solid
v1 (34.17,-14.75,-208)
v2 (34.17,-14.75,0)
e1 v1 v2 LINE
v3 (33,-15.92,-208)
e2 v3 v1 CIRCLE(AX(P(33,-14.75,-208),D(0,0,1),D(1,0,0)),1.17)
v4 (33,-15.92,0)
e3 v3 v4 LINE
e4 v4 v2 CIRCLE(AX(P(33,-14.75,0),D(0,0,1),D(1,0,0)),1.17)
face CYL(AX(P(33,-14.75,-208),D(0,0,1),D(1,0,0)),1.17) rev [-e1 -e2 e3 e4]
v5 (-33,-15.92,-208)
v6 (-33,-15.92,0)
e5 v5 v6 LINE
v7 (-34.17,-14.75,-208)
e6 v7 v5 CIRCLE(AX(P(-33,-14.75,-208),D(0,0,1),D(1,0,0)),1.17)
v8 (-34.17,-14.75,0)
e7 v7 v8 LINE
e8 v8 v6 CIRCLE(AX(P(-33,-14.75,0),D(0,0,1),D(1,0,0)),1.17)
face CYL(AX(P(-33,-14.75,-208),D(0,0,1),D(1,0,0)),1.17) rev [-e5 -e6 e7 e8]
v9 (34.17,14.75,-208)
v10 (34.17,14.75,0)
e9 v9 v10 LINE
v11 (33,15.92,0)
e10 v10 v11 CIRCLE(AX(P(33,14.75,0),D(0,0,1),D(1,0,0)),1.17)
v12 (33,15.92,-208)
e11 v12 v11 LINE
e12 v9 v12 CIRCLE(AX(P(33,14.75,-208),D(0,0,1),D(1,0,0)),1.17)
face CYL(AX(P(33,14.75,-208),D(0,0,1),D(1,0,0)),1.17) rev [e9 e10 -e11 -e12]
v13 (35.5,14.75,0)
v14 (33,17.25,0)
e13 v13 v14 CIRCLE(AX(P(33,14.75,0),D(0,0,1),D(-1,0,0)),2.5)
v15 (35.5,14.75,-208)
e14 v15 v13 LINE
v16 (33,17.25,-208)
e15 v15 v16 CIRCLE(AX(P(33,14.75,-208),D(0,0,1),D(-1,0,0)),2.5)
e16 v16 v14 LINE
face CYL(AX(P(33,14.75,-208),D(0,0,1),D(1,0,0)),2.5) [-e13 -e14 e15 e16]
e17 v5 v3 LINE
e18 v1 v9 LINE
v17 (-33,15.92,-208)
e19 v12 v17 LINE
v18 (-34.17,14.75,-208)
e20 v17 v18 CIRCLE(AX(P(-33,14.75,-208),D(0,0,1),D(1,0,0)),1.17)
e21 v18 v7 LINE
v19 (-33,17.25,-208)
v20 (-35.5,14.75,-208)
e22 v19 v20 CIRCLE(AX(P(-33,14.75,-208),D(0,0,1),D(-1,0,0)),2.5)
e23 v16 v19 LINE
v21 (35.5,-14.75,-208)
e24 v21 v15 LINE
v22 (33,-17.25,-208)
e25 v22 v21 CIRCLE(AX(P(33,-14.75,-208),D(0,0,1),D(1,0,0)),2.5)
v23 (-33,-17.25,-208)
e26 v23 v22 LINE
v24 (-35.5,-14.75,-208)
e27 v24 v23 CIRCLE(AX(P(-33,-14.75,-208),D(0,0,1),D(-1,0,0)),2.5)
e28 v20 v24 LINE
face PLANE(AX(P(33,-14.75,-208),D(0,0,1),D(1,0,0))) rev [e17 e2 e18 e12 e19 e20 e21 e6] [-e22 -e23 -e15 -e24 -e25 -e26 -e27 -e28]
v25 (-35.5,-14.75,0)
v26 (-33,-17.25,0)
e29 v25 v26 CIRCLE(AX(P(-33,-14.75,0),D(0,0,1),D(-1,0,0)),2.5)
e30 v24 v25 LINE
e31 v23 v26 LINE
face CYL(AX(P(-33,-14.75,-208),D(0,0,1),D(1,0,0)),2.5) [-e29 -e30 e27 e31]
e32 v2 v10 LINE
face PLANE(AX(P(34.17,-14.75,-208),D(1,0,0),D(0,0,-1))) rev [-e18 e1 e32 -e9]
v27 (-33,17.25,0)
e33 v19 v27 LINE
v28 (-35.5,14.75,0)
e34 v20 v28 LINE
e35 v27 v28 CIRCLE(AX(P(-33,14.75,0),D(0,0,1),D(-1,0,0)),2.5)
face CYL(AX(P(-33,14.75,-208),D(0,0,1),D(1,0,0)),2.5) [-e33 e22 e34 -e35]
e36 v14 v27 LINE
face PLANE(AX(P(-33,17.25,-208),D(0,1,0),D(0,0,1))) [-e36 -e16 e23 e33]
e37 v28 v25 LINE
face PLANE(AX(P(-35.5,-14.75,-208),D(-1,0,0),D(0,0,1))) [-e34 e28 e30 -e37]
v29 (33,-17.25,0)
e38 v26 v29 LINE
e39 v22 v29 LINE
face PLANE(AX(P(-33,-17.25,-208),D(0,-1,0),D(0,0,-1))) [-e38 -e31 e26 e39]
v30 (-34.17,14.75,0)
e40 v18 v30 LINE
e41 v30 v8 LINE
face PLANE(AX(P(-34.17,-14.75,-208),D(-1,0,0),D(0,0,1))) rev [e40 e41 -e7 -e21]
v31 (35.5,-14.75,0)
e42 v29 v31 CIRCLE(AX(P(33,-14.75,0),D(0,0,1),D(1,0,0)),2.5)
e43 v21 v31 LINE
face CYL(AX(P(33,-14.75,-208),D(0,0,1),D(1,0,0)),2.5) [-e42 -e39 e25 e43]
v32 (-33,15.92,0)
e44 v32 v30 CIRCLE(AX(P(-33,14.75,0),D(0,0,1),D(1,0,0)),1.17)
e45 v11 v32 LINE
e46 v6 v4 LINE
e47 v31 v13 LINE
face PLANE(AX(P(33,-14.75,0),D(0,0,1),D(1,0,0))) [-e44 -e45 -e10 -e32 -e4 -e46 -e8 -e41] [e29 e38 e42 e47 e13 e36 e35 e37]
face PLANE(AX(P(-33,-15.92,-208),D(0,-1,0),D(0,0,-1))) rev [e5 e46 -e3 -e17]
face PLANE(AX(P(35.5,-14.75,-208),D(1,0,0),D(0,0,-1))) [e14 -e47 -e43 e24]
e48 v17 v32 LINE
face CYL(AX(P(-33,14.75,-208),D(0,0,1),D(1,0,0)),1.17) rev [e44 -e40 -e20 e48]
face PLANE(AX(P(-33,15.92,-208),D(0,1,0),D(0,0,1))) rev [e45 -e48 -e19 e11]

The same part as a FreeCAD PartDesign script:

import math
import FreeCAD as App
import Part
import Sketcher
Q = App.Units.Quantity


def faces_at(feature, points):
    """Names of the faces that lie closest to the given points."""
    faces = feature.Shape.Faces
    near = lambda p: min(range(len(faces)), key=lambda i: faces[i].distToShape(Part.Vertex(*p))[0])
    return sorted({f"Face{near(p) + 1}" for p in points})

doc = App.newDocument("Part")
body = doc.addObject("PartDesign::Body", "Body")

# Sketch on XY plane
sketch1 = doc.addObject("Sketcher::SketchObject", "Sketch")
body.addObject(sketch1)
sketch1.AttachmentSupport = (doc.XY_Plane, [""])
sketch1.MapMode = "FlatFace"
sketch1.addGeometry([
    Part.LineSegment(App.Vector(-33, -17.2, 0), App.Vector(33, -17.2, 0)),  # 0
    Part.ArcOfCircle(Part.Circle(App.Vector(33, -14.8, 0), App.Vector(0, 0, 1), 2.5), math.radians(-90), math.radians(0)),  # 1
    Part.LineSegment(App.Vector(35.5, -14.8, 0), App.Vector(35.5, 14.8, 0)),  # 2
    Part.ArcOfCircle(Part.Circle(App.Vector(33, 14.8, 0), App.Vector(0, 0, 1), 2.5), math.radians(0), math.radians(90)),  # 3
    Part.LineSegment(App.Vector(33, 17.2, 0), App.Vector(-33, 17.2, 0)),  # 4
    Part.ArcOfCircle(Part.Circle(App.Vector(-33, 14.8, 0), App.Vector(0, 0, 1), 2.5), math.radians(90), math.radians(180)),  # 5
    Part.LineSegment(App.Vector(-35.5, 14.8, 0), App.Vector(-35.5, -14.8, 0)),  # 6
    Part.ArcOfCircle(Part.Circle(App.Vector(-33, -14.8, 0), App.Vector(0, 0, 1), 2.5), math.radians(180), math.radians(270)),  # 7
], False)
sketch1.addConstraint([
    Sketcher.Constraint("Tangent", 0, 2, 1, 1),
    Sketcher.Constraint("Tangent", 1, 2, 2, 1),
    Sketcher.Constraint("Tangent", 2, 2, 3, 1),
    Sketcher.Constraint("Tangent", 3, 2, 4, 1),
    Sketcher.Constraint("Tangent", 4, 2, 5, 1),
    Sketcher.Constraint("Tangent", 5, 2, 6, 1),
    Sketcher.Constraint("Tangent", 6, 2, 7, 1),
    Sketcher.Constraint("Tangent", 7, 2, 0, 1),
    Sketcher.Constraint("Horizontal", 0),
    Sketcher.Constraint("Vertical", 2),
    Sketcher.Constraint("Horizontal", 4),
    Sketcher.Constraint("Vertical", 6),
    Sketcher.Constraint("Equal", 1, 3),
    Sketcher.Constraint("Equal", 3, 5),
    Sketcher.Constraint("Equal", 5, 7),
    Sketcher.Constraint("Symmetric", 1, 3, 5, 3, -1, 1),
    Sketcher.Constraint("Radius", 1, Q("2.5 mm")),
    Sketcher.Constraint("DistanceX", 0, 1, 0, 2, Q("66 mm")),
    Sketcher.Constraint("DistanceY", 2, 1, 2, 2, Q("29.5 mm")),
])
pad1 = doc.addObject("PartDesign::Pad", "Pad")
body.addObject(pad1)
pad1.Profile = sketch1
pad1.Length = 208
pad1.Reversed = True
doc.recompute()

thickness = doc.addObject("PartDesign::Thickness", "Thickness")
body.addObject(thickness)
thickness.Base = (pad1, faces_at(pad1, [(0, 0, -208), (0, 0, 0)]))
thickness.Value = 1.33
thickness.Reversed = True
thickness.Join = "Intersection"

doc.recompute()
